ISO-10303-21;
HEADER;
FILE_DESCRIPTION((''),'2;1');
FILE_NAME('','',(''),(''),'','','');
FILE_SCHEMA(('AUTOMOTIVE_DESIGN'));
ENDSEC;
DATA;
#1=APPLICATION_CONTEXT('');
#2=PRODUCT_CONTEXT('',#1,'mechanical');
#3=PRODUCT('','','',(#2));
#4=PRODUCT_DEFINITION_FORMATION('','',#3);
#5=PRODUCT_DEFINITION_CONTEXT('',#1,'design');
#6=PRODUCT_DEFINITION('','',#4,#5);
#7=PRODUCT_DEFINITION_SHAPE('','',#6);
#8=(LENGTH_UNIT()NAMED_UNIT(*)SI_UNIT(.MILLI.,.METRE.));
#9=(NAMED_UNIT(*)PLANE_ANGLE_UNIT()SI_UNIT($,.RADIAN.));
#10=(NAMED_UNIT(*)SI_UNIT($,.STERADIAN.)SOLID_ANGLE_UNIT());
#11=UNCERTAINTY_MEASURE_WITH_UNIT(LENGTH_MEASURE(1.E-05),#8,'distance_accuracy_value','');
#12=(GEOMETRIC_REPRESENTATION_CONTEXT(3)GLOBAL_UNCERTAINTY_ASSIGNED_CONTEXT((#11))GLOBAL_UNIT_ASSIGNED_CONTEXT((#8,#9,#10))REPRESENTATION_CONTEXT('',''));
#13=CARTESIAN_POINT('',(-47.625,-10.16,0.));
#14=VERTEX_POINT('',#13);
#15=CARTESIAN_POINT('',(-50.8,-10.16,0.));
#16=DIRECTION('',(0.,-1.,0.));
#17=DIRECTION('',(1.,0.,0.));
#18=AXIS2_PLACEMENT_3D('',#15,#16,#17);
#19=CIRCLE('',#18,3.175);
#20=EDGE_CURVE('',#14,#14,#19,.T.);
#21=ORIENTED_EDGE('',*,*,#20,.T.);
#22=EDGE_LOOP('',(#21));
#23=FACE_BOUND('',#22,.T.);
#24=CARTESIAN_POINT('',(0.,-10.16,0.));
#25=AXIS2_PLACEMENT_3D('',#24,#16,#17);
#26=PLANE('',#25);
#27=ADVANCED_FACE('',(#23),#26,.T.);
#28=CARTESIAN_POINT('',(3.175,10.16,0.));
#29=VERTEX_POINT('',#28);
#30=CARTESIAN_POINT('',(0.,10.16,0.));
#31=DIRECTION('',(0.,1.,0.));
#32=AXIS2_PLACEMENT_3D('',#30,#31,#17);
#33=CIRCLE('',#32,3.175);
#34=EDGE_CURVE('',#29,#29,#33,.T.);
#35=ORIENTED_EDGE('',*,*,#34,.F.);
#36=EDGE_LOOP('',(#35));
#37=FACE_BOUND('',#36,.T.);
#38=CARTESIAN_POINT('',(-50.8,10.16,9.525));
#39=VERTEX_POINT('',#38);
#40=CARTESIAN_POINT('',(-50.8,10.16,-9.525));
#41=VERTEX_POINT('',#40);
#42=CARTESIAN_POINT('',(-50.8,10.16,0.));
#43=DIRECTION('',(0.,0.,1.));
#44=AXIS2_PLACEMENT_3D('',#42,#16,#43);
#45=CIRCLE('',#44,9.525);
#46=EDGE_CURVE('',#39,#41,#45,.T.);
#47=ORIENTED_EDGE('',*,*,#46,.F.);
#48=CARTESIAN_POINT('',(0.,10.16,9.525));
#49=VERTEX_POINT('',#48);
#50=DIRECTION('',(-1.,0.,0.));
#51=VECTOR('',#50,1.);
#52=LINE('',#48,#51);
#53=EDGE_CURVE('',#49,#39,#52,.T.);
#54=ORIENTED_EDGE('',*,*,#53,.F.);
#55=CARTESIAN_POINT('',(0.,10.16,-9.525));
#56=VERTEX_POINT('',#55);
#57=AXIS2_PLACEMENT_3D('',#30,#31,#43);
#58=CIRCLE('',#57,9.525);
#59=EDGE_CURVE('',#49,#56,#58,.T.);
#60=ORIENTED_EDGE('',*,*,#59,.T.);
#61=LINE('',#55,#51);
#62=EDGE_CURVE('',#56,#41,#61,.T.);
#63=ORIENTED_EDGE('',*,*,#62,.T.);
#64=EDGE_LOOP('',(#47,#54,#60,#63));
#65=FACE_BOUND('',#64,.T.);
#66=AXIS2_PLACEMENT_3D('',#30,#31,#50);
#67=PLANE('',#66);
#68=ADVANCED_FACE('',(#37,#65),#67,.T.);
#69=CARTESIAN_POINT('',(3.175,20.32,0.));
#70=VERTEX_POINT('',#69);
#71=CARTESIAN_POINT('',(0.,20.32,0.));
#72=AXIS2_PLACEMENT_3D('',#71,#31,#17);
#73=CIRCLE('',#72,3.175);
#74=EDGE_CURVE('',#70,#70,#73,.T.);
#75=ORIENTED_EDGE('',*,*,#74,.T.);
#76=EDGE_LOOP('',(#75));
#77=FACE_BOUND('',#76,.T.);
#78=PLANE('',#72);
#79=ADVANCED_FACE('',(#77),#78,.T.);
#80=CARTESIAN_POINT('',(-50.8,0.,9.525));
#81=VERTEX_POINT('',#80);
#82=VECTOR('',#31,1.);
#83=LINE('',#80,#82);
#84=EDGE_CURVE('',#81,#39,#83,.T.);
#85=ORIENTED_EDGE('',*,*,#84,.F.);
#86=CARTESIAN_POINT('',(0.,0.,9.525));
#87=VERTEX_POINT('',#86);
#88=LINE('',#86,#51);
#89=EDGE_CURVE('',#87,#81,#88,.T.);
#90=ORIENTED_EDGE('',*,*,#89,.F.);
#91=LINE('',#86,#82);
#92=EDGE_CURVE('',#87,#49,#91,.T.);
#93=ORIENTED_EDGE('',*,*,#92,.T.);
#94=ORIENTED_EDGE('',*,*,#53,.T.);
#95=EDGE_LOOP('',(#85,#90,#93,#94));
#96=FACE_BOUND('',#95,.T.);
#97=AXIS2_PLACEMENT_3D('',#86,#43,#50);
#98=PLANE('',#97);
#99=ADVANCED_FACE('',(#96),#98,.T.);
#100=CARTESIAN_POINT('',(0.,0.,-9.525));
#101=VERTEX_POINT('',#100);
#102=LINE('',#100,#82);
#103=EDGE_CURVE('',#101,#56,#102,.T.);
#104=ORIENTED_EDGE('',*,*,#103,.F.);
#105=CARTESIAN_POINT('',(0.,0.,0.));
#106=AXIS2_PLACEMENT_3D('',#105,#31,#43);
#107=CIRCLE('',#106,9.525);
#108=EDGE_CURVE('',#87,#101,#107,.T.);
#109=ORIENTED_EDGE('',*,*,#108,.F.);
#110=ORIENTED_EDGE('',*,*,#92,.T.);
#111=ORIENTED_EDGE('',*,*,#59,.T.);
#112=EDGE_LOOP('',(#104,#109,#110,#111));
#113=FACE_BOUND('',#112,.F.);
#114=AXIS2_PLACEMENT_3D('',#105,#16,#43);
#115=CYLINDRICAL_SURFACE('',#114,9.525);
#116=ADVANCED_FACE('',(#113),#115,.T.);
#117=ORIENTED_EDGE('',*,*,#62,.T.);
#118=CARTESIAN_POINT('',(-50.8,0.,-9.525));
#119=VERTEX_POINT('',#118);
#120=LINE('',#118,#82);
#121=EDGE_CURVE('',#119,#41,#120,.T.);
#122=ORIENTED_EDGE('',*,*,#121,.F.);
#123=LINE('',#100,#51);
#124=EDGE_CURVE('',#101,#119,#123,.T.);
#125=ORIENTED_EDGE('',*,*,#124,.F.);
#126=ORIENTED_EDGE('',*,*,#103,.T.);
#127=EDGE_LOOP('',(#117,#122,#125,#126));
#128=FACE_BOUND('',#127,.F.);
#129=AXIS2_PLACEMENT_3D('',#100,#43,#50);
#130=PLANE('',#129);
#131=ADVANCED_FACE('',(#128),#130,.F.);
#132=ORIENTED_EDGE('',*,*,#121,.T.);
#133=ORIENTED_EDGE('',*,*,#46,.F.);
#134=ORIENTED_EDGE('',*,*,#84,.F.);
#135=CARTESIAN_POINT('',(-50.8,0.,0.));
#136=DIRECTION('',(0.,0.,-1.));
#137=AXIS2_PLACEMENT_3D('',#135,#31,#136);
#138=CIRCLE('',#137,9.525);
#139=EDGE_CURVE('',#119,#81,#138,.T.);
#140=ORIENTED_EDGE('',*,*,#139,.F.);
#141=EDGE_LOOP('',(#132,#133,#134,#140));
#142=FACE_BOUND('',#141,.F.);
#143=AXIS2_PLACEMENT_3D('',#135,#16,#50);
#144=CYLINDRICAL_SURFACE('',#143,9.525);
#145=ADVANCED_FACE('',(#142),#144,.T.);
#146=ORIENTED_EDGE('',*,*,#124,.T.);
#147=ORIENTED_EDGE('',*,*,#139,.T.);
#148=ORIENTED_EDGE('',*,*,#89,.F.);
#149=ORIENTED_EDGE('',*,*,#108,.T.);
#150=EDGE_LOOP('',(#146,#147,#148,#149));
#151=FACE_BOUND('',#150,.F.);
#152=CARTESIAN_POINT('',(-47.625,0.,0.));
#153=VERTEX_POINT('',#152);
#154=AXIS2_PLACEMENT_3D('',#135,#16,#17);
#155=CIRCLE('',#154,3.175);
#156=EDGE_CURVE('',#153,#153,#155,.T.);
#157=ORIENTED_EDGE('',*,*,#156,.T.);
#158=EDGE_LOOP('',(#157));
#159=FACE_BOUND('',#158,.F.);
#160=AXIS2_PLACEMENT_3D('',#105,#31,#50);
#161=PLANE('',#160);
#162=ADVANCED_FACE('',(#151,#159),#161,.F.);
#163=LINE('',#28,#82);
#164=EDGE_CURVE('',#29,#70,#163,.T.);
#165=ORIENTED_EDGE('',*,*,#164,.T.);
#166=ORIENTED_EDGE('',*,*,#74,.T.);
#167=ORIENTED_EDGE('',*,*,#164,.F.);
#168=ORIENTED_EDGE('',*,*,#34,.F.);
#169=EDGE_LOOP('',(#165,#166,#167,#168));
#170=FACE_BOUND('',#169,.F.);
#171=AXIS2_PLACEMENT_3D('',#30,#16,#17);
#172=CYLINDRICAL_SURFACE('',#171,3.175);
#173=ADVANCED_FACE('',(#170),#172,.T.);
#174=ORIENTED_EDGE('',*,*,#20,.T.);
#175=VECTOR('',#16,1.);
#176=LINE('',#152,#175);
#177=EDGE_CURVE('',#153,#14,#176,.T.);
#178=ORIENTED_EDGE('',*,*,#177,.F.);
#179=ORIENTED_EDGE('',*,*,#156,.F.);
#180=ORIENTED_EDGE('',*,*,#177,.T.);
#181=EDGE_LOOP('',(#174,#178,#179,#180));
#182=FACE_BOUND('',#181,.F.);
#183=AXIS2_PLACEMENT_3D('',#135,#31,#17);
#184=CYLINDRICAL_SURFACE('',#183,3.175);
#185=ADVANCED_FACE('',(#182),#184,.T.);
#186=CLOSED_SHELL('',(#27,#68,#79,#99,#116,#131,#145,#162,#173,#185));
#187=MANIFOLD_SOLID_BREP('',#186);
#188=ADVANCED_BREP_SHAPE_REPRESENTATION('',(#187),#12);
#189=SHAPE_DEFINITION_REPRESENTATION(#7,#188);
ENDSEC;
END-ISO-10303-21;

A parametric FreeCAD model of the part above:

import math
import FreeCAD as App
import Part
import Sketcher
Q = App.Units.Quantity

doc = App.newDocument("Part")
body = doc.addObject("PartDesign::Body", "Body")

sketch1 = doc.addObject("Sketcher::SketchObject", "Sketch")
body.addObject(sketch1)
sketch1.AttachmentSupport = (doc.XZ_Plane, [""])
sketch1.MapMode = "FlatFace"
sketch1.addGeometry([
    Part.LineSegment(App.Vector(-51, 10, 0), App.Vector(0, 10, 0)),
    Part.ArcOfCircle(Part.Circle(App.Vector(0, 0, 0), App.Vector(0, 0, 1), 10), math.radians(-90), math.radians(90)),
    Part.LineSegment(App.Vector(0, -10, 0), App.Vector(-51, -10, 0)),
    Part.ArcOfCircle(Part.Circle(App.Vector(-51, 0, 0), App.Vector(0, 0, 1), 10), math.radians(90), math.radians(270)),
], False)
sketch1.addConstraint([
    Sketcher.Constraint("Tangent", 0, 2, 1, 2),
    Sketcher.Constraint("Tangent", 1, 1, 2, 1),
    Sketcher.Constraint("Tangent", 2, 2, 3, 2),
    Sketcher.Constraint("Tangent", 3, 1, 0, 1),
    Sketcher.Constraint("Horizontal", 0),
    Sketcher.Constraint("Horizontal", 2),
    Sketcher.Constraint("Coincident", 1, 3, -1, 1),
    Sketcher.Constraint("DistanceX", 0, 1, 0, 2, Q("2 in")),
    Sketcher.Constraint("Radius", 1, Q("0.375 in")),
])
pad1 = doc.addObject("PartDesign::Pad", "Pad")
body.addObject(pad1)
pad1.Profile = sketch1
pad1.Length = Q("0.4 in")
pad1.Reversed = True

sketch2 = doc.addObject("Sketcher::SketchObject", "Sketch001")
body.addObject(sketch2)
sketch2.AttachmentSupport = (doc.XZ_Plane, [""])
sketch2.MapMode = "FlatFace"
sketch2.AttachmentOffset = App.Placement(App.Vector(0, 0, -0.4 * 25.4), App.Rotation())
sketch2.addGeometry(Part.Circle(App.Vector(0, 0, 0), App.Vector(0, 0, 1), 3.2), False)
sketch2.addConstraint([
    Sketcher.Constraint("Coincident", 0, 3, -1, 1),
    Sketcher.Constraint("Diameter", 0, Q("0.25 in")),
])
pad2 = doc.addObject("PartDesign::Pad", "Pad001")
body.addObject(pad2)
pad2.Profile = sketch2
pad2.Length = Q("0.4 in")
pad2.Reversed = True

sketch3 = doc.addObject("Sketcher::SketchObject", "Sketch002")
body.addObject(sketch3)
sketch3.AttachmentSupport = (doc.XZ_Plane, [""])
sketch3.MapMode = "FlatFace"
sketch3.addGeometry(Part.Circle(App.Vector(-50.8, 0, 0), App.Vector(0, 0, 1), 3.2), False)
sketch3.addConstraint([
    Sketcher.Constraint("PointOnObject", 0, 3, -1),
    Sketcher.Constraint("Diameter", 0, Q("0.25 in")),
    Sketcher.Constraint("DistanceX", 0, 3, -1, 1, Q("2 in")),
])
pad3 = doc.addObject("PartDesign::Pad", "Pad002")
body.addObject(pad3)
pad3.Profile = sketch3
pad3.Length = Q("0.4 in")

doc.recompute()
